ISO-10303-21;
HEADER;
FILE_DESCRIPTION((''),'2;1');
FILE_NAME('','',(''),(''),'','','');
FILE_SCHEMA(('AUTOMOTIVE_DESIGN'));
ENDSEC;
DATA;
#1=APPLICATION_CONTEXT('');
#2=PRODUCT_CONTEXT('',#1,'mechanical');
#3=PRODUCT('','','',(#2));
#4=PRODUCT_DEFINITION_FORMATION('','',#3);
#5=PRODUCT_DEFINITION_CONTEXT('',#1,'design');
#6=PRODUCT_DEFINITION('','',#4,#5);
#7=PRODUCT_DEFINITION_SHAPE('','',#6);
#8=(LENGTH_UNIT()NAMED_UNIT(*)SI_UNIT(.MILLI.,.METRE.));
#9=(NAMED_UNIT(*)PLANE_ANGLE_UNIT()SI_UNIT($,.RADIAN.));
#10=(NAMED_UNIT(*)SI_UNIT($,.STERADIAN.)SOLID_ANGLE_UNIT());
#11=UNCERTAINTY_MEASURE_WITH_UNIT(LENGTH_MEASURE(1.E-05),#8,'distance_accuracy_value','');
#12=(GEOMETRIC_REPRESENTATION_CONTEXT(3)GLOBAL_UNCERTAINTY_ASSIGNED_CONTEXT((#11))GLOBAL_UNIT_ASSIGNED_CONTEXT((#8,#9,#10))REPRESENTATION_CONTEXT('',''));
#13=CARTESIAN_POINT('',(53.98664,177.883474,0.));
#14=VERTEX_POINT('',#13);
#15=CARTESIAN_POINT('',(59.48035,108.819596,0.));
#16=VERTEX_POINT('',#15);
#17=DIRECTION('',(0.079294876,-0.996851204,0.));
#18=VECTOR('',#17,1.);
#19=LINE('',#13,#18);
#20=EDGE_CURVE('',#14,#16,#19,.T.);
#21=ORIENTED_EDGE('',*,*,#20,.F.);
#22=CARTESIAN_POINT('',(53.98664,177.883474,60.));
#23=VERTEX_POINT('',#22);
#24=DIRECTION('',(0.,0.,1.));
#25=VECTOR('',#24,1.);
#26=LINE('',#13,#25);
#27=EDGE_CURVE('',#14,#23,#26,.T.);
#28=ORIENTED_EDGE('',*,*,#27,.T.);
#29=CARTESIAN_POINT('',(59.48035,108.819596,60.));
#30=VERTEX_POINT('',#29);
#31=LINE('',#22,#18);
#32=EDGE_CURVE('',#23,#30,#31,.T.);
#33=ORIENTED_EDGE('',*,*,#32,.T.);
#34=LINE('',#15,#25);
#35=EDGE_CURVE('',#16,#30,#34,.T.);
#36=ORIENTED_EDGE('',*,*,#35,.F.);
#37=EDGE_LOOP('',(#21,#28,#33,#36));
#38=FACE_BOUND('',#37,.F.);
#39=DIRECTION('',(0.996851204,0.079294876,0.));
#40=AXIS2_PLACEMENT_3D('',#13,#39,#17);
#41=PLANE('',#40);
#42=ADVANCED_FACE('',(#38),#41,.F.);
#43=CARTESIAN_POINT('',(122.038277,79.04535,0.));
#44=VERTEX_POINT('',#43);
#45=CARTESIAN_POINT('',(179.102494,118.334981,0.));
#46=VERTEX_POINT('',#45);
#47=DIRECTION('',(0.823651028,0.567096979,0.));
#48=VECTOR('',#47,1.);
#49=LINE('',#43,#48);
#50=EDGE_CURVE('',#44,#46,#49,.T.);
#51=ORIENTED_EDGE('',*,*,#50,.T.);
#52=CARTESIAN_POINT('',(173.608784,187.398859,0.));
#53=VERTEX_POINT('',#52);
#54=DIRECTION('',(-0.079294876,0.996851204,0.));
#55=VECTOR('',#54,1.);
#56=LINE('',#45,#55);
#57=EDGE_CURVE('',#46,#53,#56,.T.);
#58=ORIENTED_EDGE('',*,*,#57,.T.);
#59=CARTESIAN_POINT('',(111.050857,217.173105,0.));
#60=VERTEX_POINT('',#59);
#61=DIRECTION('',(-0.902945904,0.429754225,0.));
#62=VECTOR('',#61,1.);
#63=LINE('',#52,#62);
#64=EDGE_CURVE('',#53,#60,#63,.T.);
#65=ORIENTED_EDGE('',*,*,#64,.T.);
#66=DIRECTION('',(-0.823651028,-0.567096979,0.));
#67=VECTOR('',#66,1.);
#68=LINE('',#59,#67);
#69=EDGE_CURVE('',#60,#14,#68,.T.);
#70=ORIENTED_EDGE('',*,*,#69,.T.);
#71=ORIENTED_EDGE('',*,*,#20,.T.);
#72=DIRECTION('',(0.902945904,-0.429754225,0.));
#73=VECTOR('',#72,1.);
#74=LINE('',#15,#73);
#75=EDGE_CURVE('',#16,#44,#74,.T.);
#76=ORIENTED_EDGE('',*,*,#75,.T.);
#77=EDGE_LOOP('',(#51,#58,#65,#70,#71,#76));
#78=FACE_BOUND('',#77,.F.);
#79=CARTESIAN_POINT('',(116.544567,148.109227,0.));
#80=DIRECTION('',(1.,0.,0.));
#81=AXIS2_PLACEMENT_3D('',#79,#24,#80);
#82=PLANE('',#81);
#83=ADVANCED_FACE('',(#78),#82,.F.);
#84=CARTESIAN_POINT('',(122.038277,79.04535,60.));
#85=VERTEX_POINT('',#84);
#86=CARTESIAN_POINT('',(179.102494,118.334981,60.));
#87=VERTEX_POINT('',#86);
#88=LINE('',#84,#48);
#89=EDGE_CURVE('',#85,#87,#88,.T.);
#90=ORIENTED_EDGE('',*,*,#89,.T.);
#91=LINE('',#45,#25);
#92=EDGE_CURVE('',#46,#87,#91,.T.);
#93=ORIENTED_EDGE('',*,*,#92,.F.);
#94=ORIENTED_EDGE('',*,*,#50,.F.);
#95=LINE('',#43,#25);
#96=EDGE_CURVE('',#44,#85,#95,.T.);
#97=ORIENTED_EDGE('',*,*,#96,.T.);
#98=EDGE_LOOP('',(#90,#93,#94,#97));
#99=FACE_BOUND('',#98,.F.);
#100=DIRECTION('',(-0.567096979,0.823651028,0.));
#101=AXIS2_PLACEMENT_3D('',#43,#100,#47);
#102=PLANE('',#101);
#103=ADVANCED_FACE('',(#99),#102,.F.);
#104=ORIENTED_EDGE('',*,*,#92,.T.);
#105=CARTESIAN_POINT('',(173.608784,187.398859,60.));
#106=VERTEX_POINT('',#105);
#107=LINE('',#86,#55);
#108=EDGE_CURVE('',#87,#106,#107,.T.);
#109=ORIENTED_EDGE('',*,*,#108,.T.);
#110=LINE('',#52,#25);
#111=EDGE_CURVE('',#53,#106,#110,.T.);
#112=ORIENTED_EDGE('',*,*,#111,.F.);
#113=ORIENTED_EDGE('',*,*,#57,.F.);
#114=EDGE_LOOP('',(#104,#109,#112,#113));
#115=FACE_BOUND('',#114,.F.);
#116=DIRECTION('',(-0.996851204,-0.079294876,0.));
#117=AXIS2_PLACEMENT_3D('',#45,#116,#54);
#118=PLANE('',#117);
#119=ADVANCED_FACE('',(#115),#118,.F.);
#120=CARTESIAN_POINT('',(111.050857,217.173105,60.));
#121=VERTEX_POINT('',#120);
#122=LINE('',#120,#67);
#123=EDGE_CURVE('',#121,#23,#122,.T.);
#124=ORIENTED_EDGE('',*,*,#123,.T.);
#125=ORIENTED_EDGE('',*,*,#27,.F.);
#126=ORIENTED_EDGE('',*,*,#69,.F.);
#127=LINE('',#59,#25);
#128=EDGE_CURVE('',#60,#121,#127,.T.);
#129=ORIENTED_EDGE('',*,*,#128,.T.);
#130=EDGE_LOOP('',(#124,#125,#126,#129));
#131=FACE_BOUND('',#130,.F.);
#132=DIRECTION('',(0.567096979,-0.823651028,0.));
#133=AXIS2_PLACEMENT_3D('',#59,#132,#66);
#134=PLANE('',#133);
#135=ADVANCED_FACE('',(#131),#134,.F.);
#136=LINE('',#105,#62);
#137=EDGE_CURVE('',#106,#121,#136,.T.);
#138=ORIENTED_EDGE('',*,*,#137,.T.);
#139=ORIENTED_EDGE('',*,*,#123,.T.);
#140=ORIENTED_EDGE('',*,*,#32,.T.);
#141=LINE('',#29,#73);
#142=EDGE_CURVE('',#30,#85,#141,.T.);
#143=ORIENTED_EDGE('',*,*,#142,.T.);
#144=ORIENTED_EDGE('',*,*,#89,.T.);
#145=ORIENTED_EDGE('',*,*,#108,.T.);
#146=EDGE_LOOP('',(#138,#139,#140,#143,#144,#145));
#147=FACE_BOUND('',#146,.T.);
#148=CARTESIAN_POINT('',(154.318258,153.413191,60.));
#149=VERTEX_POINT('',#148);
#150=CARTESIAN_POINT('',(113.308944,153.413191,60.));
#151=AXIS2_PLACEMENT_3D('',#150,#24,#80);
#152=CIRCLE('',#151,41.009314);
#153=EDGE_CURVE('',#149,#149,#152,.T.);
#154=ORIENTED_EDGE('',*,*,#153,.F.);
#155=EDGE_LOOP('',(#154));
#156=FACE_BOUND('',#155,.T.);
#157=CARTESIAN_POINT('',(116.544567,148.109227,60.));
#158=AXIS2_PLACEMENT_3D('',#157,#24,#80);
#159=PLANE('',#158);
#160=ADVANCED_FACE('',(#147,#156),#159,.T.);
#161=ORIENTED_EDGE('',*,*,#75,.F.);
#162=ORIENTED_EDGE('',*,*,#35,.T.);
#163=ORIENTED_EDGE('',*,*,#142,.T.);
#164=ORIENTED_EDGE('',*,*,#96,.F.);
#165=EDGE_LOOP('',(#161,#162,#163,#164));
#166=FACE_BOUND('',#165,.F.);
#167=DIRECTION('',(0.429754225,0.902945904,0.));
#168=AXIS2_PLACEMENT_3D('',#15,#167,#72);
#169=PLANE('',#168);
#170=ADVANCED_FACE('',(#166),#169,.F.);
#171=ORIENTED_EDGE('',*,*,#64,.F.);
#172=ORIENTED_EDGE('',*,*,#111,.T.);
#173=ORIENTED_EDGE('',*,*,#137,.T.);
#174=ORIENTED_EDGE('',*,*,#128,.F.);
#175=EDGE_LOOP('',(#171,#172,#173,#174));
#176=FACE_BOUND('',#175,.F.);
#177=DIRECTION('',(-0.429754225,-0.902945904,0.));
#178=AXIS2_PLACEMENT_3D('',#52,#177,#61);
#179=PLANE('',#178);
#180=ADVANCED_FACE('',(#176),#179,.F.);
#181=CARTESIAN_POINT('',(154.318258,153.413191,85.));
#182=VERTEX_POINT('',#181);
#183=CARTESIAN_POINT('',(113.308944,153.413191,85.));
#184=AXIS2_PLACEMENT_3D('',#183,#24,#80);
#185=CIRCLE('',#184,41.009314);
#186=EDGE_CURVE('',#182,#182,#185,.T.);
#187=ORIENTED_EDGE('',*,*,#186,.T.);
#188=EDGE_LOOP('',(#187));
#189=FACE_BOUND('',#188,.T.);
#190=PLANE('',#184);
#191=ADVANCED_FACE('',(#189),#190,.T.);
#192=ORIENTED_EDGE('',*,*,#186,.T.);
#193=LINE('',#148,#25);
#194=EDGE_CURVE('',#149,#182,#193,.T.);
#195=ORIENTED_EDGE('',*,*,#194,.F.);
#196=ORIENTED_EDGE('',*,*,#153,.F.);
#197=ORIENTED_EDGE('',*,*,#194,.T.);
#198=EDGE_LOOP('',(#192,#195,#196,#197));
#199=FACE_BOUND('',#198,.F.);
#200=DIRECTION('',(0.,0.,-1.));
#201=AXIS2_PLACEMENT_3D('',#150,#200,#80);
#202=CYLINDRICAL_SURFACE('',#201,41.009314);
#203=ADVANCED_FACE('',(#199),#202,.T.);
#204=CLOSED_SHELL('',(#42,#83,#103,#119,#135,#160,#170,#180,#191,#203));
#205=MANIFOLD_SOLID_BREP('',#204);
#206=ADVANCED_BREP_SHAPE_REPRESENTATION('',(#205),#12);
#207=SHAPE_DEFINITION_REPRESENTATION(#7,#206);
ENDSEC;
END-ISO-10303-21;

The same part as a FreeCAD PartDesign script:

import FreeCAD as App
import Part
import Sketcher

V = App.Vector


def add_polygon(sketch, points):
    """Adds a closed chain of lines whose ends are joined by coincident constraints."""
    first, n = sketch.GeometryCount, len(points)
    for a, b in zip(points, points[1:] + points[:1]):
        sketch.addGeometry(Part.LineSegment(App.Vector(*a, 0), App.Vector(*b, 0)), False)
    for i in range(n):
        sketch.addConstraint(Sketcher.Constraint("Coincident", first + i, 2, first + (i + 1) % n, 1))

doc = App.newDocument("Part")
body = doc.addObject("PartDesign::Body", "Body")

sketch1 = body.newObject("Sketcher::SketchObject", "Sketch")
sketch1.AttachmentSupport = (doc.getObject("XY_Plane"), [""])
sketch1.MapMode = "FlatFace"
add_polygon(sketch1, [(111.050857, 217.173105), (53.98664, 177.883474), (59.48035, 108.819596), (122.038277, 79.04535), (179.102494, 118.334981), (173.608784, 187.398859)])
sketch1.addConstraint([
    Sketcher.Constraint("Parallel", 0, 3),
    Sketcher.Constraint("Parallel", 1, 4),
    Sketcher.Constraint("Parallel", 2, 5),
    Sketcher.Constraint("Equal", 0, 1),
    Sketcher.Constraint("Equal", 1, 2),
    Sketcher.Constraint("Equal", 2, 3),
    Sketcher.Constraint("DistanceX", -1, 1, 0, 2, 53.98664),
    Sketcher.Constraint("DistanceX", -1, 1, 1, 2, 59.48035),
    Sketcher.Constraint("DistanceY", -1, 1, 2, 2, 79.04535),
    Sketcher.Constraint("DistanceY", -1, 1, 3, 2, 118.334981),
    Sketcher.Constraint("DistanceY", -1, 1, 4, 2, 187.398859),
    Sketcher.Constraint("DistanceX", 5, 2, 2, 2, 10.98742),
])
pad1 = body.newObject("PartDesign::Pad", "Pad")
pad1.Profile = sketch1
pad1.Length = 60

sketch2 = body.newObject("Sketcher::SketchObject", "Sketch001")
sketch2.AttachmentSupport = (doc.getObject("XY_Plane"), [""])
sketch2.MapMode = "FlatFace"
sketch2.AttachmentOffset = App.Placement(V(0, 0, 60), App.Rotation())
sketch2.addGeometry(Part.Circle(V(113.308944, 153.413191, 0), V(0, 0, 1), 41.009314), False)
sketch2.addConstraint([
    Sketcher.Constraint("Diameter", 0, 82.018628),
    Sketcher.Constraint("DistanceY", -1, 1, 0, 3, 153.413191),
    Sketcher.Constraint("DistanceX", -1, 1, 0, 3, 113.308944),
])
pad2 = body.newObject("PartDesign::Pad", "Pad001")
pad2.Profile = sketch2
pad2.Length = 25

doc.recompute()
